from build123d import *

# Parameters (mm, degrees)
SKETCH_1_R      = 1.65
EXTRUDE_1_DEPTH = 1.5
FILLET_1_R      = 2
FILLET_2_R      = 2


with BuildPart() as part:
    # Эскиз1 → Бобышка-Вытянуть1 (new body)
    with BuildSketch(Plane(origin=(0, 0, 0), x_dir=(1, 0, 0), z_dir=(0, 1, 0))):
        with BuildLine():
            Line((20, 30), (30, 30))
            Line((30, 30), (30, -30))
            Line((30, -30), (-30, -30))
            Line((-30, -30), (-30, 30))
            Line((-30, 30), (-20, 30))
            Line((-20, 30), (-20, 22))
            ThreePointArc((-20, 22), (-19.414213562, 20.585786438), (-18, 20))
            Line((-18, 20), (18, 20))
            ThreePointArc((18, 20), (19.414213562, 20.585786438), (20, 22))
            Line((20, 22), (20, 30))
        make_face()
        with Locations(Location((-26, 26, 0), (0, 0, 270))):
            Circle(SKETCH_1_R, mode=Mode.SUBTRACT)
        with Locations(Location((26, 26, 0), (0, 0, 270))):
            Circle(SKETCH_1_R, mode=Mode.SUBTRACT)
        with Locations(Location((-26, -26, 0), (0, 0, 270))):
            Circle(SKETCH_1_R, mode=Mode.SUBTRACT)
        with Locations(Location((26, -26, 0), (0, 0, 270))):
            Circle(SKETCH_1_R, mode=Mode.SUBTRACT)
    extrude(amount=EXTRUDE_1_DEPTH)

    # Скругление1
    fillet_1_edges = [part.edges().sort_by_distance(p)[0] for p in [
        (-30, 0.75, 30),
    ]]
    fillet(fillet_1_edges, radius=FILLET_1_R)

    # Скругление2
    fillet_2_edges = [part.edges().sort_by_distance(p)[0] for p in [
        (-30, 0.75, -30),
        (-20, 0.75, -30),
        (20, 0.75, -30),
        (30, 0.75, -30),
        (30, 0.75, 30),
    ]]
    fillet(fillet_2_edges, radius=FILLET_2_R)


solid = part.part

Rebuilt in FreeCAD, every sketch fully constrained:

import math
import FreeCAD as App
import Part
import Sketcher


def edges_at(feature, points):
    """Names of the edges that pass closest to the given points."""
    edges = feature.Shape.Edges
    near = lambda p: min(range(len(edges)), key=lambda i: edges[i].distToShape(Part.Vertex(*p))[0])
    return sorted({f"Edge{near(p) + 1}" for p in points})

doc = App.newDocument("Part")
body = doc.addObject("PartDesign::Body", "Body")

# Sketch on XZ plane
sketch1 = body.newObject("Sketcher::SketchObject", "Sketch")
sketch1.AttachmentSupport = (doc.getObject("XZ_Plane"), [""])
sketch1.MapMode = "FlatFace"
sketch1.addGeometry([
    Part.LineSegment(App.Vector(30, -30, 0), App.Vector(20, -30, 0)),  # 0
    Part.LineSegment(App.Vector(20, -30, 0), App.Vector(20, -22, 0)),  # 1
    Part.ArcOfCircle(Part.Circle(App.Vector(18, -22, 0), App.Vector(0, 0, 1), 2), math.radians(0), math.radians(90)),  # 2
    Part.LineSegment(App.Vector(18, -20, 0), App.Vector(-18, -20, 0)),  # 3
    Part.ArcOfCircle(Part.Circle(App.Vector(-18, -22, 0), App.Vector(0, 0, 1), 2), math.radians(90), math.radians(180)),  # 4
    Part.LineSegment(App.Vector(-20, -22, 0), App.Vector(-20, -30, 0)),  # 5
    Part.LineSegment(App.Vector(-20, -30, 0), App.Vector(-30, -30, 0)),  # 6
    Part.LineSegment(App.Vector(-30, -30, 0), App.Vector(-30, 30, 0)),  # 7
    Part.LineSegment(App.Vector(-30, 30, 0), App.Vector(30, 30, 0)),  # 8
    Part.LineSegment(App.Vector(30, 30, 0), App.Vector(30, -30, 0)),  # 9
    Part.Circle(App.Vector(26, 26, 0), App.Vector(0, 0, 1), 1.6),  # 10
    Part.Circle(App.Vector(-26, 26, 0), App.Vector(0, 0, 1), 1.6),  # 11
    Part.Circle(App.Vector(26, -26, 0), App.Vector(0, 0, 1), 1.6),  # 12
    Part.Circle(App.Vector(-26, -26, 0), App.Vector(0, 0, 1), 1.6),  # 13
], False)
sketch1.addConstraint([
    Sketcher.Constraint("Coincident", 0, 2, 1, 1),
    Sketcher.Constraint("Tangent", 1, 2, 2, 1),
    Sketcher.Constraint("Tangent", 2, 2, 3, 1),
    Sketcher.Constraint("Tangent", 3, 2, 4, 1),
    Sketcher.Constraint("Tangent", 4, 2, 5, 1),
    Sketcher.Constraint("Coincident", 5, 2, 6, 1),
    Sketcher.Constraint("Coincident", 6, 2, 7, 1),
    Sketcher.Constraint("Coincident", 7, 2, 8, 1),
    Sketcher.Constraint("Coincident", 8, 2, 9, 1),
    Sketcher.Constraint("Coincident", 9, 2, 0, 1),
    Sketcher.Constraint("Horizontal", 0),
    Sketcher.Constraint("Vertical", 1),
    Sketcher.Constraint("Horizontal", 3),
    Sketcher.Constraint("Vertical", 5),
    Sketcher.Constraint("Horizontal", 6),
    Sketcher.Constraint("Vertical", 7),
    Sketcher.Constraint("Horizontal", 8),
    Sketcher.Constraint("Vertical", 9),
    Sketcher.Constraint("Equal", 2, 4),
    Sketcher.Constraint("Equal", 10, 11),
    Sketcher.Constraint("Equal", 11, 12),
    Sketcher.Constraint("Equal", 12, 13),
    Sketcher.Constraint("Symmetric", 11, 3, 12, 3, -1, 1),
    Sketcher.Constraint("Symmetric", 10, 3, 13, 3, -1, 1),
    Sketcher.Constraint("Symmetric", 6, 2, 8, 2, -1, 1),
    Sketcher.Constraint("Symmetric", 10, 3, 11, 3, -2),
    Sketcher.Constraint("Symmetric", 0, 2, 5, 2, -2),
    Sketcher.Constraint("Equal", 8, 7),
    Sketcher.Constraint("Radius", 2, 2.0),
    Sketcher.Constraint("Diameter", 10, 3.3),
    Sketcher.Constraint("DistanceX", 0, 2, 0, 1, 10.0),
    Sketcher.Constraint("DistanceX", 3, 2, 3, 1, 36.0),
    Sketcher.Constraint("DistanceY", 1, 1, 1, 2, 8.0),
    Sketcher.Constraint("DistanceX", -1, 1, 10, 3, 26.0),
    Sketcher.Constraint("DistanceY", -1, 1, 10, 3, 26.0),
])
pad1 = body.newObject("PartDesign::Pad", "Pad")
pad1.Profile = sketch1
pad1.Length = 1.5
pad1.Reversed = True
doc.recompute()

fillet = body.newObject("PartDesign::Fillet", "Fillet")
fillet.Base = (pad1, edges_at(pad1, [(-30, 0.75, 30)]))
fillet.Radius = 2
doc.recompute()

fillet2 = body.newObject("PartDesign::Fillet", "Fillet001")
fillet2.Base = (fillet, edges_at(fillet, [
    (-30, 0.75, -30),
    (-20, 0.75, -30),
    (20, 0.75, -30),
    (30, 0.75, -30),
    (30, 0.75, 30),
]))
fillet2.Radius = 2

doc.recompute()
